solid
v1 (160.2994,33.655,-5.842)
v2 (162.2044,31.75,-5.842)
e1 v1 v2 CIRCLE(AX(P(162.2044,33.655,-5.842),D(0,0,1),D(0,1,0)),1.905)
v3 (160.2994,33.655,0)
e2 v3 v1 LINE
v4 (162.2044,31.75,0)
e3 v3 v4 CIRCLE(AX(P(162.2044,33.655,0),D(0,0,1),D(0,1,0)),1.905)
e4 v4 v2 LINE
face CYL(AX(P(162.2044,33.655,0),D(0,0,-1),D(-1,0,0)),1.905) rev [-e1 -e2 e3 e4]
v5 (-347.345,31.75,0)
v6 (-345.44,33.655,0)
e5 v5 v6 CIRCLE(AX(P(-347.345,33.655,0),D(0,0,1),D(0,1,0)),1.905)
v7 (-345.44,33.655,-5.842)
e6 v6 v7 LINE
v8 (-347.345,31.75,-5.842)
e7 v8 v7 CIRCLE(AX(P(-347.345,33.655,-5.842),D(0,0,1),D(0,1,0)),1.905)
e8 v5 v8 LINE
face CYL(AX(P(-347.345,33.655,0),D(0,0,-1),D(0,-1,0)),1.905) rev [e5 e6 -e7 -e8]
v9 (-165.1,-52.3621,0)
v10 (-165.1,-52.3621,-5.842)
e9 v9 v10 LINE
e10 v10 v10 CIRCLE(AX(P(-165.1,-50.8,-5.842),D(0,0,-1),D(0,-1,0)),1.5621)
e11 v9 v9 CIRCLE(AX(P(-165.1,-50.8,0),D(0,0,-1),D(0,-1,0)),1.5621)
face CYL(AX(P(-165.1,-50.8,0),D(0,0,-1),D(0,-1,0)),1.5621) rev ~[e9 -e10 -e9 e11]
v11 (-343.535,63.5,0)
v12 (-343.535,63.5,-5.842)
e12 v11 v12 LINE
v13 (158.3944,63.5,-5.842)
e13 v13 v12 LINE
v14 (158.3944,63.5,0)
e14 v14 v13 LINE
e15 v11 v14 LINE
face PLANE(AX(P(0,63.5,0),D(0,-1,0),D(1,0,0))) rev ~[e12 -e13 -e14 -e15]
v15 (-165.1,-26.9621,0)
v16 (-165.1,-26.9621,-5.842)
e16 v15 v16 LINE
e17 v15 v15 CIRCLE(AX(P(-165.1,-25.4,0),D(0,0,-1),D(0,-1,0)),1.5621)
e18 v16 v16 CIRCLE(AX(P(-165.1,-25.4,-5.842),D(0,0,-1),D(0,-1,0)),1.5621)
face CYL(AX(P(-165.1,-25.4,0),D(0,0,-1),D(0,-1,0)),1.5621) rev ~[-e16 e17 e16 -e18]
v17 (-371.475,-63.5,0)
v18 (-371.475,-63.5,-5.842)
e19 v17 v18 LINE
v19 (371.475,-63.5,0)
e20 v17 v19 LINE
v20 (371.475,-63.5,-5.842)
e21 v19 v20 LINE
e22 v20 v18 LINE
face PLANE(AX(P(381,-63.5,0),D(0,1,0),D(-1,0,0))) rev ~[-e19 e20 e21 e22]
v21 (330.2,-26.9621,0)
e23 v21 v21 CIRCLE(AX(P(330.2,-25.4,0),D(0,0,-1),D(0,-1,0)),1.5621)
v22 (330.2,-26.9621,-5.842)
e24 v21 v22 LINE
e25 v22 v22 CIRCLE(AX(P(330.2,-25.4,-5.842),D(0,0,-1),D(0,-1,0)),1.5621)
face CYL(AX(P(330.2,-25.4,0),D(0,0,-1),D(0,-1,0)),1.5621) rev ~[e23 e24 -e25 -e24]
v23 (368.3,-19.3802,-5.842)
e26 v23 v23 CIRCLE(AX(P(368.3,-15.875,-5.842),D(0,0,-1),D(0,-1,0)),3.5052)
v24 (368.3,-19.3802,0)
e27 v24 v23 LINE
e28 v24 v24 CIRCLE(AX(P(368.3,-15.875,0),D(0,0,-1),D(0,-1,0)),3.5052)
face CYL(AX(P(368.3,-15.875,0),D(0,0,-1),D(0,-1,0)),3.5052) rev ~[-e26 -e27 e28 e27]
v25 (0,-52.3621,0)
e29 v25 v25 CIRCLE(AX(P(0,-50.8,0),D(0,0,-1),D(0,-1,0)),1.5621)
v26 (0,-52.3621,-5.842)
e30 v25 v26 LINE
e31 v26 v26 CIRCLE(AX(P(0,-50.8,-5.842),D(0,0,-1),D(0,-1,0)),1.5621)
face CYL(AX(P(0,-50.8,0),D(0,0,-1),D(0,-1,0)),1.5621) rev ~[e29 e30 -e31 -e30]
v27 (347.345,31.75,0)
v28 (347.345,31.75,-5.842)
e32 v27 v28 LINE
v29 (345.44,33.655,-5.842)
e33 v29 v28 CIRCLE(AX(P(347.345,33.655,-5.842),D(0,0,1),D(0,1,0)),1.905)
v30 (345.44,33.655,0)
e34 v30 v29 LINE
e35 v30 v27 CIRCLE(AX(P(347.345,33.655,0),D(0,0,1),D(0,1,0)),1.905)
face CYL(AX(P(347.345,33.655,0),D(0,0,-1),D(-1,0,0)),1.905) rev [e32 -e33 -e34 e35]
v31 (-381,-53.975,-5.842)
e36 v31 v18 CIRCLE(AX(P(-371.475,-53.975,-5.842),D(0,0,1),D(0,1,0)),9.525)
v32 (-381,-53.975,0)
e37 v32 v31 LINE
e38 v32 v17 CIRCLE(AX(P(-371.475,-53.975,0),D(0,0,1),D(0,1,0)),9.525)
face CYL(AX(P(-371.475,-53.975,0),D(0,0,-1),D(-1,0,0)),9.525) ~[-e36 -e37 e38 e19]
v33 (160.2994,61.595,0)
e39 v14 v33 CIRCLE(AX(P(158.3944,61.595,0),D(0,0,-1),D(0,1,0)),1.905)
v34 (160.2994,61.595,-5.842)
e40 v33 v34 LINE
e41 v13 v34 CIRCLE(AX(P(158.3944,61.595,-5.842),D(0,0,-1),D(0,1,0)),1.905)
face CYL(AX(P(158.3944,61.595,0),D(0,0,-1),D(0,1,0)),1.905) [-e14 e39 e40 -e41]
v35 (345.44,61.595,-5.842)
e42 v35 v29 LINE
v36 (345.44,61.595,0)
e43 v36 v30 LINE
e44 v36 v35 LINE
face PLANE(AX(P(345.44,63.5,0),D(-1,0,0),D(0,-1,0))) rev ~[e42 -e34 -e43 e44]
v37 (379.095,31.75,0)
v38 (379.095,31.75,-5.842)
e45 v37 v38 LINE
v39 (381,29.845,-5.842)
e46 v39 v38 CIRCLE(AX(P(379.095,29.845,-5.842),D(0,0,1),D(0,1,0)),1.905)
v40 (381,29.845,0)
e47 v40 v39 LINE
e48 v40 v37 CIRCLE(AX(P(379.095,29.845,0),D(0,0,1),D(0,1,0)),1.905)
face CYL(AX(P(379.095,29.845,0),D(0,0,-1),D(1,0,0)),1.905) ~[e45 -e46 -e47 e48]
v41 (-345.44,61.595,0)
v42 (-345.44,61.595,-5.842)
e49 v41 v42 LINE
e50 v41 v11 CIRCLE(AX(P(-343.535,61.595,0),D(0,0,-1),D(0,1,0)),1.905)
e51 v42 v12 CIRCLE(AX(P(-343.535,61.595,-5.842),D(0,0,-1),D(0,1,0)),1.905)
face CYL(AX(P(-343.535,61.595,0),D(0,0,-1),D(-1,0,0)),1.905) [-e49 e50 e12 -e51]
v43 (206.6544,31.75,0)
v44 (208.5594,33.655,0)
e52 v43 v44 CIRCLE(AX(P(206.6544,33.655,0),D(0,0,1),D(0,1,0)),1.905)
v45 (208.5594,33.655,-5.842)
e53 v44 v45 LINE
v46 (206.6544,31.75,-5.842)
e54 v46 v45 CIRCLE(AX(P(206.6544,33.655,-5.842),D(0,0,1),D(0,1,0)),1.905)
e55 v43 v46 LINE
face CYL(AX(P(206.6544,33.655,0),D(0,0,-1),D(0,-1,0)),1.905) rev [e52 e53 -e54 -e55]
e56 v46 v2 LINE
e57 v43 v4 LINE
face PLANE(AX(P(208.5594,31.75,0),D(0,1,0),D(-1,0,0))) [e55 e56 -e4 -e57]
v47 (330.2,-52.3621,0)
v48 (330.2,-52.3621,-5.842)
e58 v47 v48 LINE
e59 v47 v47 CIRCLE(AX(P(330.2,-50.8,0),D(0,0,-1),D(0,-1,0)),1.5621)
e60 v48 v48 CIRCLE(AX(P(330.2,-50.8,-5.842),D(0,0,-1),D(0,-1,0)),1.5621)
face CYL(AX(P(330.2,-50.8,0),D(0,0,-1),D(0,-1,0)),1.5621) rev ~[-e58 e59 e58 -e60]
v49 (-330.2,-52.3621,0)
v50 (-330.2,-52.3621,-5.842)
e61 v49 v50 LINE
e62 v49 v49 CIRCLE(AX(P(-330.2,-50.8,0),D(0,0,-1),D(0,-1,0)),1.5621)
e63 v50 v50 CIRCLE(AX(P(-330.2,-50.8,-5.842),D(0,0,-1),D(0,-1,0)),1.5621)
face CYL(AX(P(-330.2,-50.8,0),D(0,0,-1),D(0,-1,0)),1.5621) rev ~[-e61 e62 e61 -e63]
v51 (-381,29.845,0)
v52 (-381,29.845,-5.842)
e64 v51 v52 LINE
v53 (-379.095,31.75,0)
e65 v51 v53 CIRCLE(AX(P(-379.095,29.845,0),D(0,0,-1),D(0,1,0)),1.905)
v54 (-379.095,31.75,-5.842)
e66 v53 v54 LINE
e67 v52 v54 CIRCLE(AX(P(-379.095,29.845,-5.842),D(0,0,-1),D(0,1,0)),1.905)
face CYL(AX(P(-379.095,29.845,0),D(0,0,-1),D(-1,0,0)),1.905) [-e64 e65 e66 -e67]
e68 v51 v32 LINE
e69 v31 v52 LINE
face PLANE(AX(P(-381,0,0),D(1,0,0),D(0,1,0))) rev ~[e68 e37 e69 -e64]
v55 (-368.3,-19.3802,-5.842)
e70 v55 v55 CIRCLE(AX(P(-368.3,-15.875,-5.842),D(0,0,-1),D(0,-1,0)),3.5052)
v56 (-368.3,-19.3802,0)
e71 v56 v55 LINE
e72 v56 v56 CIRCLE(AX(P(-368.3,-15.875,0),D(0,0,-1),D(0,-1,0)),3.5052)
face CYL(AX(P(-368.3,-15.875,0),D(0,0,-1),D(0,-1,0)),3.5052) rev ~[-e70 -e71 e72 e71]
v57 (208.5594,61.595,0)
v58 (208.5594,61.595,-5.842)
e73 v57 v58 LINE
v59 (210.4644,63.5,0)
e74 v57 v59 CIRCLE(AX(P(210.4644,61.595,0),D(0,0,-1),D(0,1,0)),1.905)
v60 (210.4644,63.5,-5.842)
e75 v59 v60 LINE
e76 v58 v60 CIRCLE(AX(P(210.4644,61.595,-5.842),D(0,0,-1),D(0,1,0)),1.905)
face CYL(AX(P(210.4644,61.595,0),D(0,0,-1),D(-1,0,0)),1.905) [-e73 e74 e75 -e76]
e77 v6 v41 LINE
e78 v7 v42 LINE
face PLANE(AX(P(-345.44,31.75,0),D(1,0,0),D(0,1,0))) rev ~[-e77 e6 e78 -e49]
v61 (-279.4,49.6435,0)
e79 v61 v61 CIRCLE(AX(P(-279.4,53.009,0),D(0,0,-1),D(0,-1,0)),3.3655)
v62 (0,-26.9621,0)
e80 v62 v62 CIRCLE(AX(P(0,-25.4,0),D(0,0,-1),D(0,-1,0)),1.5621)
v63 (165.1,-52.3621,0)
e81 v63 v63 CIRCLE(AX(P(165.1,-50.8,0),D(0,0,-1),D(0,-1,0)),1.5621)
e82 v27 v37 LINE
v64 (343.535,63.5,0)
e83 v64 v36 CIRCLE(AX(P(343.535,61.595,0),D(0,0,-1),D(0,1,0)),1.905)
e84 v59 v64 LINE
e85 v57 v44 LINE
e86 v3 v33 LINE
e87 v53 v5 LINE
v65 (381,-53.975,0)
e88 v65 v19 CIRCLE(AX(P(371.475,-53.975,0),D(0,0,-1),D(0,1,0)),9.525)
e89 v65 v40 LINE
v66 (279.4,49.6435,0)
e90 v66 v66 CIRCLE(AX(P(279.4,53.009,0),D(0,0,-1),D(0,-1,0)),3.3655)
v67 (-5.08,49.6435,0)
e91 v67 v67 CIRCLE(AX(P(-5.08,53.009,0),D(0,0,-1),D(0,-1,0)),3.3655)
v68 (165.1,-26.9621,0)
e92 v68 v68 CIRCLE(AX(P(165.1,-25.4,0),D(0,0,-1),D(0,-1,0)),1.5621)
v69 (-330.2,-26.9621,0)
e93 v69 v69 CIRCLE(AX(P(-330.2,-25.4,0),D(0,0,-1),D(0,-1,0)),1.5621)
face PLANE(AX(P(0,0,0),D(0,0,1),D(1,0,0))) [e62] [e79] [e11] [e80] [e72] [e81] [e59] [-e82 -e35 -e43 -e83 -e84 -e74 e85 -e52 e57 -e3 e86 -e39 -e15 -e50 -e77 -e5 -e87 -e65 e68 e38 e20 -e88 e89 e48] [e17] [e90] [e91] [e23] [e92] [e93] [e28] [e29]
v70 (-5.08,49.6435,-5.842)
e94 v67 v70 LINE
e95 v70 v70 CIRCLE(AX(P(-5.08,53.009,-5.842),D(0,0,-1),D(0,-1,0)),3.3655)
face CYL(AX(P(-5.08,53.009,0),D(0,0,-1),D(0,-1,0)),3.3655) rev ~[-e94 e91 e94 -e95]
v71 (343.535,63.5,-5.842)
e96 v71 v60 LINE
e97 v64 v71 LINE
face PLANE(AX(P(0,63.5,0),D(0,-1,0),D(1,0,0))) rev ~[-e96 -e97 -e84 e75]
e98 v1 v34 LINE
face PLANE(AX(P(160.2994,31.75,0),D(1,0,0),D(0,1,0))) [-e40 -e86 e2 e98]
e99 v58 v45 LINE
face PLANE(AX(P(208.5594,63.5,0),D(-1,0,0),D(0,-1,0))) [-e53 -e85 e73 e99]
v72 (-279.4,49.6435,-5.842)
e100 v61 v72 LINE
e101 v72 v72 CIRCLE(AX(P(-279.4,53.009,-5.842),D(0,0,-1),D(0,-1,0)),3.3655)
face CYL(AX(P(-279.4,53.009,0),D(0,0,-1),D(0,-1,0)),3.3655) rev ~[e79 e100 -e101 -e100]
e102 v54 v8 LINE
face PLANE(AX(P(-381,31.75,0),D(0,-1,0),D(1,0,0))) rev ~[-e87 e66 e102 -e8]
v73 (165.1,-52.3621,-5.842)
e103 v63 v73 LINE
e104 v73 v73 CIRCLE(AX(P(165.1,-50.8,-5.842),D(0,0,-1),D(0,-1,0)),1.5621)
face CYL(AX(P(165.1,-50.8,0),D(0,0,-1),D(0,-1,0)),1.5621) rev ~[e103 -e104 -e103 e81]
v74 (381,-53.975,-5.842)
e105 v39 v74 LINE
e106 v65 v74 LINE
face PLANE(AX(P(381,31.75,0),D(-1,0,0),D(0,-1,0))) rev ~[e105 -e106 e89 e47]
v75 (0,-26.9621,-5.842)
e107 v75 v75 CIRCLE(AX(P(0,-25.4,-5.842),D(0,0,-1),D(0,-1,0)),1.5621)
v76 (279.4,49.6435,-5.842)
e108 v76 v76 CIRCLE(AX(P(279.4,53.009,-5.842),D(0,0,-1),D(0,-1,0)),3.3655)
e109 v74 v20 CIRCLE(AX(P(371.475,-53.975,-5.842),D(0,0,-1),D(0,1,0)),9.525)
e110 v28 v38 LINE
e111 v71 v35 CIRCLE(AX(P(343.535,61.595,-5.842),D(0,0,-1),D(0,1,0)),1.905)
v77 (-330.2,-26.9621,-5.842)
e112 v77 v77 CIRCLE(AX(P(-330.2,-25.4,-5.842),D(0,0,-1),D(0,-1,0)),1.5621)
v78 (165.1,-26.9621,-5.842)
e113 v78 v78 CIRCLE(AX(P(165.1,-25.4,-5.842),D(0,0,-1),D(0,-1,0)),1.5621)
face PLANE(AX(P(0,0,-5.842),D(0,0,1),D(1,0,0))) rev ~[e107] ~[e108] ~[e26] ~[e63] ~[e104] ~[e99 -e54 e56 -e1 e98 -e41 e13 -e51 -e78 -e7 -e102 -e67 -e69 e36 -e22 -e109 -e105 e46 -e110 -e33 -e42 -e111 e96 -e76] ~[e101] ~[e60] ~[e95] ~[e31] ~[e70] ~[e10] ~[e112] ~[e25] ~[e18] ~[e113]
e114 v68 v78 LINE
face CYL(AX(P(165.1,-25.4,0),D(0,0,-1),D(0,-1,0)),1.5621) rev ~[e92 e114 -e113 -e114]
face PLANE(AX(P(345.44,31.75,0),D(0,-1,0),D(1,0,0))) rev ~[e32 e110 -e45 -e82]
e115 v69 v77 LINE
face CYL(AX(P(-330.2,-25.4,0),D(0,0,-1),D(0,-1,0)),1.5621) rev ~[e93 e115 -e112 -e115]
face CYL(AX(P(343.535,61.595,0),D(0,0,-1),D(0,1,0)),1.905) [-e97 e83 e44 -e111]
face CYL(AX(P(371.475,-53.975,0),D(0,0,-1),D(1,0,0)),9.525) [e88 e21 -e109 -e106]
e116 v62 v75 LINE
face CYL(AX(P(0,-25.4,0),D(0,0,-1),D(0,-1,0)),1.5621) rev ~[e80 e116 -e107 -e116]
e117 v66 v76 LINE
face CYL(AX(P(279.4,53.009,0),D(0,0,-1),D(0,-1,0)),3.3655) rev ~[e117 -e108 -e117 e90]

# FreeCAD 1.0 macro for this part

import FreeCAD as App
import Part
import Sketcher
from FreeCAD import Vector
Q = App.Units.Quantity


def edges_at(feature, points):
    """Names of the edges that pass closest to the given points."""
    edges = feature.Shape.Edges
    near = lambda p: min(range(len(edges)), key=lambda i: edges[i].distToShape(Part.Vertex(*p))[0])
    return sorted({f"Edge{near(p) + 1}" for p in points})

doc = App.newDocument("Part")
params = doc.addObject("Spreadsheet::Sheet", "Params")
for row, (alias, value) in enumerate([
    ("sketch1_width", "30 in"),
    ("sketch1_height", "1.25 in"),
    ("pad1_length", "0.23 in"),
    ("sketch2_diameter", "0.265 in"),
    ("hole_diameter", "0.265 in"),
    ("fillet_radius", "0.375 in"),
    ("sketch3_diameter", "0.276 in"),
    ("hole2_diameter", "0.276 in"),
    ("fillet2_radius", "0.075 in"),
    ("sketch4_width", "1.9 in"),
    ("sketch4_height", "1.25 in"),
    ("fillet3_radius", "0.075 in"),
    ("sketch5_diameter", "0.123 in"),
    ("hole3_diameter", "0.123 in"),
    ("linearpattern_pitch", "1 in"),
], start=1):
    params.set(f"A{row}", alias)
    params.set(f"B{row}", "=" + value)
    params.setAlias(f"B{row}", alias)

body = doc.addObject("PartDesign::Body", "Body")

# Sketch on XY plane
sketch1 = body.newObject("Sketcher::SketchObject", "Sketch")
sketch1.AttachmentSupport = (doc.getObject("XY_Plane"), [""])
sketch1.MapMode = "FlatFace"
sketch1.addGeometry(Part.LineSegment(Vector(345, 64, 0), Vector(-345, 64, 0)), False)
sketch1.addGeometry(Part.LineSegment(Vector(-345, 64, 0), Vector(-345, 32, 0)), False)
sketch1.addGeometry(Part.LineSegment(Vector(-345, 32, 0), Vector(-381, 32, 0)), False)
sketch1.addGeometry(Part.LineSegment(Vector(-381, 32, 0), Vector(-381, -64, 0)), False)
sketch1.addGeometry(Part.LineSegment(Vector(-381, -64, 0), Vector(381, -64, 0)), False)
sketch1.addGeometry(Part.LineSegment(Vector(381, -64, 0), Vector(381, 32, 0)), False)
sketch1.addGeometry(Part.LineSegment(Vector(381, 32, 0), Vector(345, 32, 0)), False)
sketch1.addGeometry(Part.LineSegment(Vector(345, 32, 0), Vector(345, 64, 0)), False)
sketch1.addConstraint(Sketcher.Constraint("Coincident", 0, 2, 1, 1))
sketch1.addConstraint(Sketcher.Constraint("Coincident", 1, 2, 2, 1))
sketch1.addConstraint(Sketcher.Constraint("Coincident", 2, 2, 3, 1))
sketch1.addConstraint(Sketcher.Constraint("Coincident", 3, 2, 4, 1))
sketch1.addConstraint(Sketcher.Constraint("Coincident", 4, 2, 5, 1))
sketch1.addConstraint(Sketcher.Constraint("Coincident", 5, 2, 6, 1))
sketch1.addConstraint(Sketcher.Constraint("Coincident", 6, 2, 7, 1))
sketch1.addConstraint(Sketcher.Constraint("Coincident", 7, 2, 0, 1))
sketch1.addConstraint(Sketcher.Constraint("Horizontal", 0))
sketch1.addConstraint(Sketcher.Constraint("Vertical", 1))
sketch1.addConstraint(Sketcher.Constraint("Horizontal", 2))
sketch1.addConstraint(Sketcher.Constraint("Vertical", 3))
sketch1.addConstraint(Sketcher.Constraint("Horizontal", 4))
sketch1.addConstraint(Sketcher.Constraint("Vertical", 5))
sketch1.addConstraint(Sketcher.Constraint("Horizontal", 6))
sketch1.addConstraint(Sketcher.Constraint("Vertical", 7))
sketch1.addConstraint(Sketcher.Constraint("Symmetric", 2, 2, 5, 2, -2))
sketch1.addConstraint(Sketcher.Constraint("Equal", 2, 6))
sketch1.addConstraint(Sketcher.Constraint("DistanceX", 4, 1, 4, 2, Q("30 in")))
sketch1.addConstraint(Sketcher.Constraint("DistanceY", 3, 2, 0, 2, Q("5 in")))
sketch1.addConstraint(Sketcher.Constraint("DistanceY", 1, 2, 1, 1, Q("1.25 in")))
sketch1.addConstraint(Sketcher.Constraint("DistanceX", 0, 2, -1, 1, Q("13.6 in")))
sketch1.addConstraint(Sketcher.Constraint("DistanceY", -1, 1, 1, 2, Q("1.25 in")))
sketch1.setExpression("Constraints[18]", "Params.sketch1_width")
sketch1.setExpression("Constraints[20]", "Params.sketch1_height")
pad1 = body.newObject("PartDesign::Pad", "Pad")
pad1.Profile = sketch1
pad1.setExpression("Length", "Params.pad1_length")
pad1.Reversed = True

# Sketch on XY plane
sketch2 = body.newObject("Sketcher::SketchObject", "Sketch001")
sketch2.AttachmentSupport = (doc.getObject("XY_Plane"), [""])
sketch2.MapMode = "FlatFace"
sketch2.addGeometry(Part.Circle(Vector(-279.4, 53, 0), Vector(0, 0, 1), 3.4), False)
sketch2.addGeometry(Part.Circle(Vector(279.4, 53, 0), Vector(0, 0, 1), 3.4), False)
sketch2.addGeometry(Part.Circle(Vector(-5.1, 53, 0), Vector(0, 0, 1), 3.4), False)
sketch2.addConstraint(Sketcher.Constraint("Equal", 0, 1))
sketch2.addConstraint(Sketcher.Constraint("Equal", 1, 2))
sketch2.addConstraint(Sketcher.Constraint("Symmetric", 0, 3, 1, 3, -2))
sketch2.addConstraint(Sketcher.Constraint("Horizontal", 1, 3, 2, 3))
sketch2.addConstraint(Sketcher.Constraint("Diameter", 0, Q("0.265 in")))
sketch2.addConstraint(Sketcher.Constraint("DistanceX", 0, 3, -1, 1, Q("11 in")))
sketch2.addConstraint(Sketcher.Constraint("DistanceX", 2, 3, -1, 1, Q("0.2 in")))
sketch2.addConstraint(Sketcher.Constraint("DistanceY", -1, 1, 0, 3, 53.009))
sketch2.setExpression("Constraints[4]", "Params.sketch2_diameter")
doc.recompute()
hole = body.newObject("PartDesign::Hole", "Hole")
hole.Profile = sketch2
hole.ThreadType = "None"
hole.setExpression("Diameter", "Params.hole_diameter")
hole.DepthType = "ThroughAll"
doc.recompute()

fillet = body.newObject("PartDesign::Fillet", "Fillet")
fillet.Base = (hole, edges_at(hole, [(381, -63.5, -2.921), (-381, -63.5, -2.921)]))
fillet.setExpression("Radius", "Params.fillet_radius")

# Sketch on XY plane
sketch3 = body.newObject("Sketcher::SketchObject", "Sketch002")
sketch3.AttachmentSupport = (doc.getObject("XY_Plane"), [""])
sketch3.MapMode = "FlatFace"
sketch3.addGeometry(Part.Circle(Vector(-368.3, -15.9, 0), Vector(0, 0, 1), 3.5), False)
sketch3.addGeometry(Part.Circle(Vector(368.3, -15.9, 0), Vector(0, 0, 1), 3.5), False)
sketch3.addConstraint(Sketcher.Constraint("Equal", 0, 1))
sketch3.addConstraint(Sketcher.Constraint("Symmetric", 0, 3, 1, 3, -2))
sketch3.addConstraint(Sketcher.Constraint("Diameter", 0, Q("0.276 in")))
sketch3.addConstraint(Sketcher.Constraint("DistanceX", 0, 3, 1, 3, Q("29 in")))
sketch3.addConstraint(Sketcher.Constraint("DistanceY", 0, 3, -1, 1, Q("0.625 in")))
sketch3.setExpression("Constraints[2]", "Params.sketch3_diameter")
doc.recompute()
hole2 = body.newObject("PartDesign::Hole", "Hole001")
hole2.Profile = sketch3
hole2.ThreadType = "None"
hole2.setExpression("Diameter", "Params.hole2_diameter")
hole2.DepthType = "ThroughAll"
doc.recompute()

fillet2 = body.newObject("PartDesign::Fillet", "Fillet001")
fillet2.Base = (hole2, edges_at(hole2, [
    (-381, 31.75, -2.921),
    (-345.44, 31.75, -2.921),
    (-345.44, 63.5, -2.921),
    (345.44, 63.5, -2.921),
    (381, 31.75, -2.921),
    (345.44, 31.75, -2.921),
]))
fillet2.setExpression("Radius", "Params.fillet2_radius")

# Sketch on XY plane
sketch4 = body.newObject("Sketcher::SketchObject", "Sketch003")
sketch4.AttachmentSupport = (doc.getObject("XY_Plane"), [""])
sketch4.MapMode = "FlatFace"
sketch4.addGeometry(Part.LineSegment(Vector(209, 32, 0), Vector(209, 64, 0)), False)
sketch4.addGeometry(Part.LineSegment(Vector(209, 64, 0), Vector(160, 64, 0)), False)
sketch4.addGeometry(Part.LineSegment(Vector(160, 64, 0), Vector(160, 32, 0)), False)
sketch4.addGeometry(Part.LineSegment(Vector(160, 32, 0), Vector(209, 32, 0)), False)
sketch4.addConstraint(Sketcher.Constraint("Coincident", 0, 2, 1, 1))
sketch4.addConstraint(Sketcher.Constraint("Coincident", 1, 2, 2, 1))
sketch4.addConstraint(Sketcher.Constraint("Coincident", 2, 2, 3, 1))
sketch4.addConstraint(Sketcher.Constraint("Coincident", 3, 2, 0, 1))
sketch4.addConstraint(Sketcher.Constraint("Vertical", 0))
sketch4.addConstraint(Sketcher.Constraint("Horizontal", 1))
sketch4.addConstraint(Sketcher.Constraint("Vertical", 2))
sketch4.addConstraint(Sketcher.Constraint("Horizontal", 3))
sketch4.addConstraint(Sketcher.Constraint("DistanceX", 1, 2, 1, 1, Q("1.9 in")))
sketch4.addConstraint(Sketcher.Constraint("DistanceY", 0, 1, 0, 2, Q("1.25 in")))
sketch4.addConstraint(Sketcher.Constraint("DistanceY", -1, 1, 2, 2, Q("1.25 in")))
sketch4.addConstraint(Sketcher.Constraint("DistanceX", -1, 1, 0, 2, Q("8.211 in")))
sketch4.setExpression("Constraints[8]", "Params.sketch4_width")
sketch4.setExpression("Constraints[9]", "Params.sketch4_height")
pocket1 = body.newObject("PartDesign::Pocket", "Pocket")
pocket1.Profile = sketch4
pocket1.Type = "ThroughAll"
doc.recompute()

fillet3 = body.newObject("PartDesign::Fillet", "Fillet002")
fillet3.Base = (pocket1, edges_at(pocket1, [
    (160.299, 63.5, -2.921),
    (160.299, 31.75, -2.921),
    (208.559, 31.75, -2.921),
    (208.559, 63.5, -2.921),
]))
fillet3.setExpression("Radius", "Params.fillet3_radius")

# Sketch on XY plane
sketch5 = body.newObject("Sketcher::SketchObject", "Sketch004")
sketch5.AttachmentSupport = (doc.getObject("XY_Plane"), [""])
sketch5.MapMode = "FlatFace"
sketch5.addGeometry(Part.Circle(Vector(330.2, -50.8, 0), Vector(0, 0, 1), 1.6), False)
sketch5.addGeometry(Part.Circle(Vector(0, -50.8, 0), Vector(0, 0, 1), 1.6), False)
sketch5.addGeometry(Part.Circle(Vector(-330.2, -50.8, 0), Vector(0, 0, 1), 1.6), False)
sketch5.addGeometry(Part.Circle(Vector(165.1, -50.8, 0), Vector(0, 0, 1), 1.6), False)
sketch5.addGeometry(Part.Circle(Vector(-165.1, -50.8, 0), Vector(0, 0, 1), 1.6), False)
sketch5.addConstraint(Sketcher.Constraint("Equal", 0, 1))
sketch5.addConstraint(Sketcher.Constraint("Equal", 1, 2))
sketch5.addConstraint(Sketcher.Constraint("Equal", 2, 3))
sketch5.addConstraint(Sketcher.Constraint("Equal", 3, 4))
sketch5.addConstraint(Sketcher.Constraint("Symmetric", 0, 3, 2, 3, -2))
sketch5.addConstraint(Sketcher.Constraint("Symmetric", 3, 3, 4, 3, -2))
sketch5.addConstraint(Sketcher.Constraint("PointOnObject", 1, 3, -2))
sketch5.addConstraint(Sketcher.Constraint("Horizontal", 0, 3, 1, 3))
sketch5.addConstraint(Sketcher.Constraint("Horizontal", 2, 3, 3, 3))
sketch5.addConstraint(Sketcher.Constraint("Diameter", 0, Q("0.123 in")))
sketch5.addConstraint(Sketcher.Constraint("DistanceX", -1, 1, 0, 3, Q("13 in")))
sketch5.addConstraint(Sketcher.Constraint("DistanceY", 0, 3, -1, 1, Q("2 in")))
sketch5.addConstraint(Sketcher.Constraint("DistanceX", 4, 3, 3, 3, Q("13 in")))
sketch5.setExpression("Constraints[9]", "Params.sketch5_diameter")
doc.recompute()
hole3 = body.newObject("PartDesign::Hole", "Hole002")
hole3.Profile = sketch5
hole3.ThreadType = "None"
hole3.setExpression("Diameter", "Params.hole3_diameter")
hole3.DepthType = "ThroughAll"
doc.recompute()

linearpattern = body.newObject("PartDesign::LinearPattern", "LinearPattern")
linearpattern.Originals = [hole3]
linearpattern.Direction = (doc.getObject("Y_Axis"), [""])
linearpattern.Mode = "offset"
linearpattern.setExpression("Offset", "Params.linearpattern_pitch")
linearpattern.Occurrences = 2
body.Tip = linearpattern

doc.recompute()
